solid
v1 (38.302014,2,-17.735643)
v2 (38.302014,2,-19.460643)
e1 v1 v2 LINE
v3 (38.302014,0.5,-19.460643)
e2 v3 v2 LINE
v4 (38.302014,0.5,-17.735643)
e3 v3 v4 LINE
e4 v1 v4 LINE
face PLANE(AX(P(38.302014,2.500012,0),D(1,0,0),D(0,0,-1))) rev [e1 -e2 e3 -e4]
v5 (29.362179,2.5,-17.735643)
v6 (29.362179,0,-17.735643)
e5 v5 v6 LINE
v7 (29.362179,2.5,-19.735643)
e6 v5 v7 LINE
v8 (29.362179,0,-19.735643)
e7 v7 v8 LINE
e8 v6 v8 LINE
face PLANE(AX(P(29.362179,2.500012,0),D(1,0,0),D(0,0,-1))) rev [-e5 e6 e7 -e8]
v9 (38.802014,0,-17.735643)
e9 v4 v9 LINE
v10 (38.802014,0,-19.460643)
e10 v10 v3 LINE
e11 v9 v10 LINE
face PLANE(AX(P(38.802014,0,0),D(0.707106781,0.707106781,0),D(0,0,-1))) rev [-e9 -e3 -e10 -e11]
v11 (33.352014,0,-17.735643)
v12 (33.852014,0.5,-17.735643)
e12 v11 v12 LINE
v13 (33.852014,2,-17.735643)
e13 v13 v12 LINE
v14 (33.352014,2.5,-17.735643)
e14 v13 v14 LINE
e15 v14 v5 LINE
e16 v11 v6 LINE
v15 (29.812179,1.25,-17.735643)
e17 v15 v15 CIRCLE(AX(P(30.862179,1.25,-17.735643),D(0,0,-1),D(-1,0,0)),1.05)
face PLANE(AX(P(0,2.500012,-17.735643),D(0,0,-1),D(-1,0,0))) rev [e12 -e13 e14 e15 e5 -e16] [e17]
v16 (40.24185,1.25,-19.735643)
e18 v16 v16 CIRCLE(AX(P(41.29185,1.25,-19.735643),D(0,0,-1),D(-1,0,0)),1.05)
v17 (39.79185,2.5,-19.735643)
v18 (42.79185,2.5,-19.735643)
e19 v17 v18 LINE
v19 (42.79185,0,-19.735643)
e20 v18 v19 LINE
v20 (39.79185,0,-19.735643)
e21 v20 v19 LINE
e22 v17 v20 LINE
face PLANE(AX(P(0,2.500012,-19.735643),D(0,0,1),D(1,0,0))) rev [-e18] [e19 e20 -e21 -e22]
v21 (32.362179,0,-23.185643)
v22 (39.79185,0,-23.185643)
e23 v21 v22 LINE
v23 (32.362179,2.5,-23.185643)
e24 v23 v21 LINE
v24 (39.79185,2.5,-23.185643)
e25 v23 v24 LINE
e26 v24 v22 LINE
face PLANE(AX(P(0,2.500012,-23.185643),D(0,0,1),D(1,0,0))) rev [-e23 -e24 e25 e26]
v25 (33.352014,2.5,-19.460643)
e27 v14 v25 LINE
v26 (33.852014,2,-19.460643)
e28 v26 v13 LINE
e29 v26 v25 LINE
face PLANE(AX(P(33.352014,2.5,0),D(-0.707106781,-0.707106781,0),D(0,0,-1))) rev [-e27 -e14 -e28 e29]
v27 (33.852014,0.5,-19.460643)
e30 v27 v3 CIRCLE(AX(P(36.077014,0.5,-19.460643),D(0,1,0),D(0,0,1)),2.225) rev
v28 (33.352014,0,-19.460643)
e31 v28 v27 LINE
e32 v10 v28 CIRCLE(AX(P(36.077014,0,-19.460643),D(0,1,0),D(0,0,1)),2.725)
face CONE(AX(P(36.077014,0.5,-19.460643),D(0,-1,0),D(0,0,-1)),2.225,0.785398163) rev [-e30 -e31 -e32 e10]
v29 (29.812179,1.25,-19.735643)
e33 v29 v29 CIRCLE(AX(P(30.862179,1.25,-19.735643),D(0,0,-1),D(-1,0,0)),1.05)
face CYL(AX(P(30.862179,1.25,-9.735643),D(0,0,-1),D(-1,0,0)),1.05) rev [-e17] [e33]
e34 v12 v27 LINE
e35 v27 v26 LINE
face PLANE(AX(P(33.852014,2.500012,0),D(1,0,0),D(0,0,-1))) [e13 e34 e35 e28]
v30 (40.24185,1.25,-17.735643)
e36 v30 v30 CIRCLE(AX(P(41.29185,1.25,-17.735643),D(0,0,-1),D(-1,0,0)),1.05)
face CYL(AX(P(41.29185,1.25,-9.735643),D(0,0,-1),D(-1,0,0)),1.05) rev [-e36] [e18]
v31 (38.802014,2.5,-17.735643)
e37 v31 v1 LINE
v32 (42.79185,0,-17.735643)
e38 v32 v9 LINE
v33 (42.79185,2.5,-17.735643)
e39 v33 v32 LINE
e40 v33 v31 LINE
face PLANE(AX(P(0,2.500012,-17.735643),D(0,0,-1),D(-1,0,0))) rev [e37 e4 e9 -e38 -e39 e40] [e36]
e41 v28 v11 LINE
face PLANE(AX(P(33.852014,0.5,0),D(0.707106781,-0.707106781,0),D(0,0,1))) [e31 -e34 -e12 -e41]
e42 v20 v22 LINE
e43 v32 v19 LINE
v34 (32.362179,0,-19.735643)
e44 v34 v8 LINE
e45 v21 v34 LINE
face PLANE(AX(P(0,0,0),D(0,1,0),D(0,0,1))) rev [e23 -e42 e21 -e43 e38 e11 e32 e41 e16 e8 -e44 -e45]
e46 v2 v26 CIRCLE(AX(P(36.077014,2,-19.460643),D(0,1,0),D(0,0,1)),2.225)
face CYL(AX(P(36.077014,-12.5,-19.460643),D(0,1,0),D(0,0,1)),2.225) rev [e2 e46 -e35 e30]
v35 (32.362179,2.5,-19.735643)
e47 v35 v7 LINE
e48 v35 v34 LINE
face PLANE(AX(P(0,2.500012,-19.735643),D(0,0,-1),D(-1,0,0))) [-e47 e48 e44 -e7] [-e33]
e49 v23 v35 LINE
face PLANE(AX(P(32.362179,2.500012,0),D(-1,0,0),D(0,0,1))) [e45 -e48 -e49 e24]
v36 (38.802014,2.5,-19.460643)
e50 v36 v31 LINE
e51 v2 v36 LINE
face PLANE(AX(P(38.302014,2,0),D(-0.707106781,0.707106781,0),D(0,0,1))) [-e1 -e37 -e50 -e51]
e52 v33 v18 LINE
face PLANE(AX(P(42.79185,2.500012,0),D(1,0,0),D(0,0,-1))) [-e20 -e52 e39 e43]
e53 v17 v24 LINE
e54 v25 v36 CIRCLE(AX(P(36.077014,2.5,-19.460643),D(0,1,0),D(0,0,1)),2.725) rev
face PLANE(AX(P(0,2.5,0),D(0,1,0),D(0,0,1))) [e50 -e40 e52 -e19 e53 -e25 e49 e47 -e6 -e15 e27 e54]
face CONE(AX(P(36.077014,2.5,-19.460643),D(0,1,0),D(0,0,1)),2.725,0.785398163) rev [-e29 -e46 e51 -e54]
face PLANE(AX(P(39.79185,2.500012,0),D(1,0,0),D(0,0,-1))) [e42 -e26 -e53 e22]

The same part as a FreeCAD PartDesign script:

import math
import FreeCAD as App
import Part
import Sketcher
from FreeCAD import Vector
Q = App.Units.Quantity


def edges_at(feature, points):
    """Names of the edges that pass closest to the given points."""
    edges = feature.Shape.Edges
    near = lambda p: min(range(len(edges)), key=lambda i: edges[i].distToShape(Part.Vertex(*p))[0])
    return sorted({f"Edge{near(p) + 1}" for p in points})


def add_polygon(sketch, points):
    """Adds a closed chain of lines whose ends are joined by coincident constraints."""
    first, n = sketch.GeometryCount, len(points)
    for a, b in zip(points, points[1:] + points[:1]):
        sketch.addGeometry(Part.LineSegment(App.Vector(*a, 0), App.Vector(*b, 0)), False)
    for i in range(n):
        sketch.addConstraint(Sketcher.Constraint("Coincident", first + i, 2, first + (i + 1) % n, 1))

doc = App.newDocument("Part")
body = doc.addObject("PartDesign::Body", "Body")

sketch1 = body.newObject("Sketcher::SketchObject", "Sketch")
sketch1.AttachmentSupport = (doc.getObject("XZ_Plane"), [""])
sketch1.MapMode = "FlatFace"
add_polygon(sketch1, [(0, -39), (0, 0), (72, 0), (72, -39)])
sketch1.addConstraint(Sketcher.Constraint("Vertical", 0))
sketch1.addConstraint(Sketcher.Constraint("Horizontal", 1))
sketch1.addConstraint(Sketcher.Constraint("Vertical", 2))
sketch1.addConstraint(Sketcher.Constraint("Horizontal", 3))
sketch1.addConstraint(Sketcher.Constraint("Coincident", 0, 2, -1, 1))
sketch1.addConstraint(Sketcher.Constraint("DistanceX", 1, 1, 1, 2, Q("72.154029 mm")))
sketch1.addConstraint(Sketcher.Constraint("DistanceY", 0, 1, 0, 2, Q("39.43903 mm")))
pad1 = body.newObject("PartDesign::Pad", "Pad")
pad1.Profile = sketch1
pad1.Length = 2.5
pad1.Reversed = True

sketch2 = body.newObject("Sketcher::SketchObject", "Sketch001")
sketch2.AttachmentSupport = (doc.getObject("XZ_Plane"), [""])
sketch2.MapMode = "FlatFace"
sketch2.AttachmentOffset = App.Placement(Vector(0, 0, -2.5), App.Rotation())
add_polygon(sketch2, [(0, -39.4), (0, 0), (72.2, 0), (72.2, -39.4)])
sketch2.addGeometry(Part.LineSegment(Vector(42.8, -17.7, 0), Vector(38.3, -17.7, 0)), False)
sketch2.addGeometry(Part.LineSegment(Vector(38.3, -17.7, 0), Vector(38.3, -19.5, 0)), False)
sketch2.addGeometry(Part.ArcOfCircle(Part.Circle(Vector(36.1, -19.5, 0), Vector(0, 0, 1), 2.2), math.radians(180), math.radians(360)), False)
sketch2.addGeometry(Part.LineSegment(Vector(33.9, -19.5, 0), Vector(33.9, -17.7, 0)), False)
sketch2.addGeometry(Part.LineSegment(Vector(33.9, -17.7, 0), Vector(29.4, -17.7, 0)), False)
sketch2.addGeometry(Part.LineSegment(Vector(29.4, -17.7, 0), Vector(29.4, -19.7, 0)), False)
sketch2.addGeometry(Part.LineSegment(Vector(29.4, -19.7, 0), Vector(32.4, -19.7, 0)), False)
sketch2.addGeometry(Part.LineSegment(Vector(32.4, -19.7, 0), Vector(32.4, -23.2, 0)), False)
sketch2.addGeometry(Part.LineSegment(Vector(32.4, -23.2, 0), Vector(39.8, -23.2, 0)), False)
sketch2.addGeometry(Part.LineSegment(Vector(39.8, -23.2, 0), Vector(39.8, -19.7, 0)), False)
sketch2.addGeometry(Part.LineSegment(Vector(39.8, -19.7, 0), Vector(42.8, -19.7, 0)), False)
sketch2.addGeometry(Part.LineSegment(Vector(42.8, -19.7, 0), Vector(42.8, -17.7, 0)), False)
sketch2.addConstraint(Sketcher.Constraint("Coincident", 4, 2, 5, 1))
sketch2.addConstraint(Sketcher.Constraint("Tangent", 5, 2, 6, 2))
sketch2.addConstraint(Sketcher.Constraint("Tangent", 6, 1, 7, 1))
sketch2.addConstraint(Sketcher.Constraint("Coincident", 7, 2, 8, 1))
sketch2.addConstraint(Sketcher.Constraint("Coincident", 8, 2, 9, 1))
sketch2.addConstraint(Sketcher.Constraint("Coincident", 9, 2, 10, 1))
sketch2.addConstraint(Sketcher.Constraint("Coincident", 10, 2, 11, 1))
sketch2.addConstraint(Sketcher.Constraint("Coincident", 11, 2, 12, 1))
sketch2.addConstraint(Sketcher.Constraint("Coincident", 12, 2, 13, 1))
sketch2.addConstraint(Sketcher.Constraint("Coincident", 13, 2, 14, 1))
sketch2.addConstraint(Sketcher.Constraint("Coincident", 14, 2, 15, 1))
sketch2.addConstraint(Sketcher.Constraint("Coincident", 15, 2, 4, 1))
sketch2.addConstraint(Sketcher.Constraint("Vertical", 0))
sketch2.addConstraint(Sketcher.Constraint("Horizontal", 1))
sketch2.addConstraint(Sketcher.Constraint("Vertical", 2))
sketch2.addConstraint(Sketcher.Constraint("Horizontal", 3))
sketch2.addConstraint(Sketcher.Constraint("Horizontal", 4))
sketch2.addConstraint(Sketcher.Constraint("Vertical", 5))
sketch2.addConstraint(Sketcher.Constraint("Vertical", 7))
sketch2.addConstraint(Sketcher.Constraint("Horizontal", 8))
sketch2.addConstraint(Sketcher.Constraint("Vertical", 9))
sketch2.addConstraint(Sketcher.Constraint("Horizontal", 10))
sketch2.addConstraint(Sketcher.Constraint("Vertical", 11))
sketch2.addConstraint(Sketcher.Constraint("Horizontal", 12))
sketch2.addConstraint(Sketcher.Constraint("Vertical", 13))
sketch2.addConstraint(Sketcher.Constraint("Horizontal", 14))
sketch2.addConstraint(Sketcher.Constraint("Vertical", 15))
sketch2.addConstraint(Sketcher.Constraint("Coincident", 0, 2, -1, 1))
sketch2.addConstraint(Sketcher.Constraint("Horizontal", 4, 2, 7, 2))
sketch2.addConstraint(Sketcher.Constraint("Horizontal", 10, 2, 13, 2))
sketch2.addConstraint(Sketcher.Constraint("Equal", 4, 8))
sketch2.addConstraint(Sketcher.Constraint("Equal", 10, 14))
sketch2.addConstraint(Sketcher.Constraint("DistanceX", 10, 1, 10, 2, Q("3 mm")))
sketch2.addConstraint(Sketcher.Constraint("DistanceY", 9, 2, 9, 1, Q("2 mm")))
sketch2.addConstraint(Sketcher.Constraint("Radius", 6, Q("2.225 mm")))
sketch2.addConstraint(Sketcher.Constraint("DistanceY", 11, 2, 11, 1, Q("3.45 mm")))
sketch2.addConstraint(Sketcher.Constraint("DistanceY", 5, 2, 5, 1, Q("1.725 mm")))
sketch2.addConstraint(Sketcher.Constraint("DistanceX", 1, 1, 1, 2, Q("72.154029 mm")))
sketch2.addConstraint(Sketcher.Constraint("DistanceX", 12, 1, 12, 2, Q("7.42967 mm")))
sketch2.addConstraint(Sketcher.Constraint("DistanceY", 0, 1, 0, 2, Q("39.43903 mm")))
sketch2.addConstraint(Sketcher.Constraint("DistanceX", -1, 1, 8, 2, Q("29.362179 mm")))
sketch2.addConstraint(Sketcher.Constraint("DistanceY", 6, 3, -1, 1, Q("19.460643 mm")))
pocket1 = body.newObject("PartDesign::Pocket", "Pocket")
pocket1.Profile = sketch2
pocket1.Type = "ThroughAll"
pocket1.Midplane = True
doc.recompute()

chamfer = body.newObject("PartDesign::Chamfer", "Chamfer")
chamfer.Base = (pocket1, edges_at(pocket1, [(36.077, 0, -21.686), (33.852, 0, -18.598), (38.302, 0, -18.598)]))
chamfer.Size = 0.5
doc.recompute()

chamfer2 = body.newObject("PartDesign::Chamfer", "Chamfer001")
chamfer2.Base = (chamfer, edges_at(chamfer, [(38.302, 2.5, -18.598), (33.852, 2.5, -18.598), (36.077, 2.5, -21.686)]))
chamfer2.Size = 0.5

sketch3 = body.newObject("Sketcher::SketchObject", "Sketch002")
sketch3.AttachmentSupport = (doc.getObject("XY_Plane"), [""])
sketch3.MapMode = "FlatFace"
sketch3.AttachmentOffset = App.Placement(Vector(0, 0, -19.735643), App.Rotation())
sketch3.addGeometry(Part.Circle(Vector(41.3, 1.2, 0), Vector(0, 0, 1), 1.1), False)
sketch3.addGeometry(Part.Circle(Vector(30.9, 1.2, 0), Vector(0, 0, 1), 1.1), False)
sketch3.addConstraint(Sketcher.Constraint("Equal", 0, 1))
sketch3.addConstraint(Sketcher.Constraint("Horizontal", 0, 3, 1, 3))
sketch3.addConstraint(Sketcher.Constraint("Diameter", 0, Q("2.1 mm")))
sketch3.addConstraint(Sketcher.Constraint("DistanceY", -1, 1, 0, 3, Q("1.25 mm")))
sketch3.addConstraint(Sketcher.Constraint("DistanceX", -1, 1, 0, 3, Q("41.29185 mm")))
sketch3.addConstraint(Sketcher.Constraint("DistanceX", -1, 1, 1, 3, Q("30.862179 mm")))
pocket2 = body.newObject("PartDesign::Pocket", "Pocket001")
pocket2.Profile = sketch3
pocket2.Length = 10
pocket2.Reversed = True

doc.recompute()
